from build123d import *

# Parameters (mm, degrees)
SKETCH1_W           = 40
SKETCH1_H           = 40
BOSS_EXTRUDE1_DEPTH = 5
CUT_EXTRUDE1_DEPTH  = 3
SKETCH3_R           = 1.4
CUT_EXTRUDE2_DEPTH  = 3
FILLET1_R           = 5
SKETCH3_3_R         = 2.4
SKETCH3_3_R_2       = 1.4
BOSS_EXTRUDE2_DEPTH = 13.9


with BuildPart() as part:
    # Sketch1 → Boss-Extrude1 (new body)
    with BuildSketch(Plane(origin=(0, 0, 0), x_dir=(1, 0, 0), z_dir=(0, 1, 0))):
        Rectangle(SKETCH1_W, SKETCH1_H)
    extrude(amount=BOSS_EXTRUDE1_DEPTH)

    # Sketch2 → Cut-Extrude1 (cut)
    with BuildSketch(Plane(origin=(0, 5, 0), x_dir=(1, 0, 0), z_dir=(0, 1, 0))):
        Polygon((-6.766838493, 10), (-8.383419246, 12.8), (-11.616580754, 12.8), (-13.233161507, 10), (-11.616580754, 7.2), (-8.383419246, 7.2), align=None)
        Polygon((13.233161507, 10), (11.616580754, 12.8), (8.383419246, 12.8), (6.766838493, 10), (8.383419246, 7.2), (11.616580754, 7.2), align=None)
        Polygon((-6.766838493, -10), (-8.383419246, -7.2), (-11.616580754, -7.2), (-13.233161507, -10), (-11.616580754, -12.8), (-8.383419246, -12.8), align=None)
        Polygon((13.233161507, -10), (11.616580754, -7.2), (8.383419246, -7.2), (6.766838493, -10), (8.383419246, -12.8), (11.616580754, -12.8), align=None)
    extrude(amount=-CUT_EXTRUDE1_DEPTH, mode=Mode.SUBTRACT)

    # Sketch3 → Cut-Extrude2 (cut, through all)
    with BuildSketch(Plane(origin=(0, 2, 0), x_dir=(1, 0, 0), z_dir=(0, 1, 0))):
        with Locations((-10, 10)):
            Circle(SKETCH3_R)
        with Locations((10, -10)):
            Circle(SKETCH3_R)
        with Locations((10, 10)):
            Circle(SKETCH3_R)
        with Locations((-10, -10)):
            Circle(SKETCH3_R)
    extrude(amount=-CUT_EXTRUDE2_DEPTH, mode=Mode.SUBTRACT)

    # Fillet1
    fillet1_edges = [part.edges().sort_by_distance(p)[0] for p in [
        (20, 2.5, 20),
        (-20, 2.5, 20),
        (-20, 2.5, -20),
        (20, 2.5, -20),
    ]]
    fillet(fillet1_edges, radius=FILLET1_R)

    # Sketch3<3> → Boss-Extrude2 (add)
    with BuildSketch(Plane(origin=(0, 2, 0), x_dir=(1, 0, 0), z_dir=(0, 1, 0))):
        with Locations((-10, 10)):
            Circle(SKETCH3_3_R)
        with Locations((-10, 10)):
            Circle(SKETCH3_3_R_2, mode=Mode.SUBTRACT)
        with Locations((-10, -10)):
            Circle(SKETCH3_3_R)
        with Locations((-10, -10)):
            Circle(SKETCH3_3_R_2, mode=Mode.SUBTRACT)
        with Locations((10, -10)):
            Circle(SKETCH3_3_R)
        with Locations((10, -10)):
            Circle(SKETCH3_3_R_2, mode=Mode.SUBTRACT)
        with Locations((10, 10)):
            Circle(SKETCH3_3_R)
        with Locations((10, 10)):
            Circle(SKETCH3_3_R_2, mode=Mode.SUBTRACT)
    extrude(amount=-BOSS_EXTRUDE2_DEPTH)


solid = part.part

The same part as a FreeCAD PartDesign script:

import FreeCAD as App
import Part
import Sketcher

V = App.Vector
Q = App.Units.Quantity


def edges_at(feature, points):
    """Names of the edges that pass closest to the given points."""
    edges = feature.Shape.Edges
    near = lambda p: min(range(len(edges)), key=lambda i: edges[i].distToShape(Part.Vertex(*p))[0])
    return sorted({f"Edge{near(p) + 1}" for p in points})

doc = App.newDocument("Part")
body = doc.addObject("PartDesign::Body", "Body")

# Sketch on XZ plane
sketch1 = body.newObject("Sketcher::SketchObject", "Sketch")
sketch1.AttachmentSupport = (doc.getObject("XZ_Plane"), [""])
sketch1.MapMode = "FlatFace"
sketch1.addGeometry([
    Part.LineSegment(V(-20, -20, 0), V(-20, 20, 0)),
    Part.LineSegment(V(-20, 20, 0), V(20, 20, 0)),
    Part.LineSegment(V(20, 20, 0), V(20, -20, 0)),
    Part.LineSegment(V(20, -20, 0), V(-20, -20, 0)),
], False)
sketch1.addConstraint([
    Sketcher.Constraint("Coincident", 0, 2, 1, 1),
    Sketcher.Constraint("Coincident", 1, 2, 2, 1),
    Sketcher.Constraint("Coincident", 2, 2, 3, 1),
    Sketcher.Constraint("Coincident", 3, 2, 0, 1),
    Sketcher.Constraint("Vertical", 0),
    Sketcher.Constraint("Horizontal", 1),
    Sketcher.Constraint("Vertical", 2),
    Sketcher.Constraint("Horizontal", 3),
    Sketcher.Constraint("Symmetric", 0, 2, 2, 2, -1, 1),
    Sketcher.Constraint("Equal", 3, 0),
    Sketcher.Constraint("DistanceX", 1, 1, 1, 2, 40.0),
])
pad1 = body.newObject("PartDesign::Pad", "Pad")
pad1.Profile = sketch1
pad1.Length = 5
pad1.Reversed = True

# Sketch on XZ plane
sketch2 = body.newObject("Sketcher::SketchObject", "Sketch001")
sketch2.AttachmentSupport = (doc.getObject("XZ_Plane"), [""])
sketch2.MapMode = "FlatFace"
sketch2.AttachmentOffset = App.Placement(V(0, 0, -5), App.Rotation())
sketch2.addGeometry([
    Part.LineSegment(V(-6.766838, -10, 0), V(-8.383419, -12.8, 0)),  # 0
    Part.LineSegment(V(-8.383419, -12.8, 0), V(-11.616581, -12.8, 0)),  # 1
    Part.LineSegment(V(-11.616581, -12.8, 0), V(-13.233162, -10, 0)),  # 2
    Part.LineSegment(V(-13.233162, -10, 0), V(-11.616581, -7.2, 0)),  # 3
    Part.LineSegment(V(-11.616581, -7.2, 0), V(-8.383419, -7.2, 0)),  # 4
    Part.LineSegment(V(-8.383419, -7.2, 0), V(-6.766838, -10, 0)),  # 5
    Part.LineSegment(V(13.233162, -10, 0), V(11.616581, -12.8, 0)),  # 6
    Part.LineSegment(V(11.616581, -12.8, 0), V(8.383419, -12.8, 0)),  # 7
    Part.LineSegment(V(8.383419, -12.8, 0), V(6.766838, -10, 0)),  # 8
    Part.LineSegment(V(6.766838, -10, 0), V(8.383419, -7.2, 0)),  # 9
    Part.LineSegment(V(8.383419, -7.2, 0), V(11.616581, -7.2, 0)),  # 10
    Part.LineSegment(V(11.616581, -7.2, 0), V(13.233162, -10, 0)),  # 11
    Part.LineSegment(V(-6.766838, 10, 0), V(-8.383419, 7.2, 0)),  # 12
    Part.LineSegment(V(-8.383419, 7.2, 0), V(-11.616581, 7.2, 0)),  # 13
    Part.LineSegment(V(-11.616581, 7.2, 0), V(-13.233162, 10, 0)),  # 14
    Part.LineSegment(V(-13.233162, 10, 0), V(-11.616581, 12.8, 0)),  # 15
    Part.LineSegment(V(-11.616581, 12.8, 0), V(-8.383419, 12.8, 0)),  # 16
    Part.LineSegment(V(-8.383419, 12.8, 0), V(-6.766838, 10, 0)),  # 17
    Part.LineSegment(V(13.233162, 10, 0), V(11.616581, 7.2, 0)),  # 18
    Part.LineSegment(V(11.616581, 7.2, 0), V(8.383419, 7.2, 0)),  # 19
    Part.LineSegment(V(8.383419, 7.2, 0), V(6.766838, 10, 0)),  # 20
    Part.LineSegment(V(6.766838, 10, 0), V(8.383419, 12.8, 0)),  # 21
    Part.LineSegment(V(8.383419, 12.8, 0), V(11.616581, 12.8, 0)),  # 22
    Part.LineSegment(V(11.616581, 12.8, 0), V(13.233162, 10, 0)),  # 23
], False)
sketch2.addConstraint([
    Sketcher.Constraint("Coincident", 0, 2, 1, 1),
    Sketcher.Constraint("Coincident", 1, 2, 2, 1),
    Sketcher.Constraint("Coincident", 2, 2, 3, 1),
    Sketcher.Constraint("Coincident", 3, 2, 4, 1),
    Sketcher.Constraint("Coincident", 4, 2, 5, 1),
    Sketcher.Constraint("Coincident", 5, 2, 0, 1),
    Sketcher.Constraint("Coincident", 6, 2, 7, 1),
    Sketcher.Constraint("Coincident", 7, 2, 8, 1),
    Sketcher.Constraint("Coincident", 8, 2, 9, 1),
    Sketcher.Constraint("Coincident", 9, 2, 10, 1),
    Sketcher.Constraint("Coincident", 10, 2, 11, 1),
    Sketcher.Constraint("Coincident", 11, 2, 6, 1),
    Sketcher.Constraint("Coincident", 12, 2, 13, 1),
    Sketcher.Constraint("Coincident", 13, 2, 14, 1),
    Sketcher.Constraint("Coincident", 14, 2, 15, 1),
    Sketcher.Constraint("Coincident", 15, 2, 16, 1),
    Sketcher.Constraint("Coincident", 16, 2, 17, 1),
    Sketcher.Constraint("Coincident", 17, 2, 12, 1),
    Sketcher.Constraint("Coincident", 18, 2, 19, 1),
    Sketcher.Constraint("Coincident", 19, 2, 20, 1),
    Sketcher.Constraint("Coincident", 20, 2, 21, 1),
    Sketcher.Constraint("Coincident", 21, 2, 22, 1),
    Sketcher.Constraint("Coincident", 22, 2, 23, 1),
    Sketcher.Constraint("Coincident", 23, 2, 18, 1),
    Sketcher.Constraint("Horizontal", 1),
    Sketcher.Constraint("Horizontal", 4),
    Sketcher.Constraint("Horizontal", 7),
    Sketcher.Constraint("Horizontal", 10),
    Sketcher.Constraint("Horizontal", 13),
    Sketcher.Constraint("Horizontal", 16),
    Sketcher.Constraint("Horizontal", 19),
    Sketcher.Constraint("Horizontal", 22),
    Sketcher.Constraint("Symmetric", 9, 2, 12, 2, -1, 1),
    Sketcher.Constraint("Symmetric", 11, 2, 14, 2, -1, 1),
    Sketcher.Constraint("Symmetric", 6, 2, 15, 2, -1, 1),
    Sketcher.Constraint("Symmetric", 8, 2, 17, 2, -1, 1),
    Sketcher.Constraint("Symmetric", 3, 2, 18, 2, -1, 1),
    Sketcher.Constraint("Symmetric", 5, 2, 20, 2, -1, 1),
    Sketcher.Constraint("Symmetric", 0, 2, 21, 2, -1, 1),
    Sketcher.Constraint("Symmetric", 2, 2, 23, 2, -1, 1),
    Sketcher.Constraint("Symmetric", 1, 2, 6, 2, -2),
    Sketcher.Constraint("Symmetric", 5, 2, 8, 2, -2),
    Sketcher.Constraint("Symmetric", 4, 2, 9, 2, -2),
    Sketcher.Constraint("Symmetric", 2, 2, 11, 2, -2),
    Sketcher.Constraint("Parallel", 0, 3),
    Sketcher.Constraint("Parallel", 2, 5),
    Sketcher.Constraint("Parallel", 3, 6),
    Sketcher.Constraint("Parallel", 5, 8),
    Sketcher.Constraint("Parallel", 8, 11),
    Sketcher.Constraint("Parallel", 11, 14),
    Sketcher.Constraint("Parallel", 14, 17),
    Sketcher.Constraint("Parallel", 17, 20),
    Sketcher.Constraint("Parallel", 20, 23),
    Sketcher.Constraint("Horizontal", 2, 2, 5, 2),
    Sketcher.Constraint("Vertical", 1, 2, 3, 2),
    Sketcher.Constraint("Angle", 0, Q("-120 deg")),
    Sketcher.Constraint("DistanceY", 2, 2, -1, 1, 10.0),
    Sketcher.Constraint("DistanceX", 0, 2, 6, 2, 20.0),
    Sketcher.Constraint("DistanceY", 0, 2, -1, 1, 12.8),
    Sketcher.Constraint("DistanceX", 1, 2, 1, 1, 3.233162),
])
pocket1 = body.newObject("PartDesign::Pocket", "Pocket")
pocket1.Profile = sketch2
pocket1.Length = 3
pocket1.Reversed = True

# Sketch on XZ plane
sketch3 = body.newObject("Sketcher::SketchObject", "Sketch002")
sketch3.AttachmentSupport = (doc.getObject("XZ_Plane"), [""])
sketch3.MapMode = "FlatFace"
sketch3.AttachmentOffset = App.Placement(V(0, 0, -2), App.Rotation())
sketch3.addGeometry([
    Part.Circle(V(-10, -10, 0), V(0, 0, 1), 1.4),
    Part.Circle(V(10, 10, 0), V(0, 0, 1), 1.4),
    Part.Circle(V(10, -10, 0), V(0, 0, 1), 1.4),
    Part.Circle(V(-10, 10, 0), V(0, 0, 1), 1.4),
], False)
sketch3.addConstraint([
    Sketcher.Constraint("Equal", 0, 1),
    Sketcher.Constraint("Equal", 1, 2),
    Sketcher.Constraint("Equal", 2, 3),
    Sketcher.Constraint("Symmetric", 0, 3, 1, 3, -1, 1),
    Sketcher.Constraint("Symmetric", 2, 3, 3, 3, -1, 1),
    Sketcher.Constraint("Symmetric", 0, 3, 2, 3, -2),
    Sketcher.Constraint("Diameter", 0, 2.8),
    Sketcher.Constraint("DistanceX", 0, 3, -1, 1, 10.0),
    Sketcher.Constraint("DistanceY", 0, 3, -1, 1, 10.0),
])
pocket2 = body.newObject("PartDesign::Pocket", "Pocket001")
pocket2.Profile = sketch3
pocket2.Type = "ThroughAll"
pocket2.Reversed = True
doc.recompute()

fillet = body.newObject("PartDesign::Fillet", "Fillet")
fillet.Base = (pocket2, edges_at(pocket2, [
    (20, 2.5, 20),
    (-20, 2.5, 20),
    (-20, 2.5, -20),
    (20, 2.5, -20),
]))
fillet.Radius = 5

# Sketch on XZ plane
sketch4 = body.newObject("Sketcher::SketchObject", "Sketch003")
sketch4.AttachmentSupport = (doc.getObject("XZ_Plane"), [""])
sketch4.MapMode = "FlatFace"
sketch4.AttachmentOffset = App.Placement(V(0, 0, -2), App.Rotation())
sketch4.addGeometry([
    Part.Circle(V(-10, -10, 0), V(0, 0, 1), 2.4),  # 0
    Part.Circle(V(-10, -10, 0), V(0, 0, 1), 1.4),  # 1
    Part.Circle(V(-10, 10, 0), V(0, 0, 1), 2.4),  # 2
    Part.Circle(V(-10, 10, 0), V(0, 0, 1), 1.4),  # 3
    Part.Circle(V(10, 10, 0), V(0, 0, 1), 2.4),  # 4
    Part.Circle(V(10, 10, 0), V(0, 0, 1), 1.4),  # 5
    Part.Circle(V(10, -10, 0), V(0, 0, 1), 2.4),  # 6
    Part.Circle(V(10, -10, 0), V(0, 0, 1), 1.4),  # 7
], False)
sketch4.addConstraint([
    Sketcher.Constraint("Coincident", 1, 3, 0, 3),
    Sketcher.Constraint("Coincident", 3, 3, 2, 3),
    Sketcher.Constraint("Coincident", 5, 3, 4, 3),
    Sketcher.Constraint("Coincident", 7, 3, 6, 3),
    Sketcher.Constraint("Equal", 0, 2),
    Sketcher.Constraint("Equal", 1, 3),
    Sketcher.Constraint("Equal", 2, 4),
    Sketcher.Constraint("Equal", 3, 5),
    Sketcher.Constraint("Equal", 4, 6),
    Sketcher.Constraint("Equal", 5, 7),
    Sketcher.Constraint("Symmetric", 0, 3, 4, 3, -1, 1),
    Sketcher.Constraint("Symmetric", 2, 3, 6, 3, -1, 1),
    Sketcher.Constraint("Symmetric", 2, 3, 4, 3, -2),
    Sketcher.Constraint("Diameter", 0, 4.8),
    Sketcher.Constraint("Diameter", 1, 2.8),
    Sketcher.Constraint("DistanceX", 0, 3, -1, 1, 10.0),
    Sketcher.Constraint("DistanceY", 0, 3, -1, 1, 10.0),
])
pad2 = body.newObject("PartDesign::Pad", "Pad001")
pad2.Profile = sketch4
pad2.Length = 13.9

doc.recompute()
